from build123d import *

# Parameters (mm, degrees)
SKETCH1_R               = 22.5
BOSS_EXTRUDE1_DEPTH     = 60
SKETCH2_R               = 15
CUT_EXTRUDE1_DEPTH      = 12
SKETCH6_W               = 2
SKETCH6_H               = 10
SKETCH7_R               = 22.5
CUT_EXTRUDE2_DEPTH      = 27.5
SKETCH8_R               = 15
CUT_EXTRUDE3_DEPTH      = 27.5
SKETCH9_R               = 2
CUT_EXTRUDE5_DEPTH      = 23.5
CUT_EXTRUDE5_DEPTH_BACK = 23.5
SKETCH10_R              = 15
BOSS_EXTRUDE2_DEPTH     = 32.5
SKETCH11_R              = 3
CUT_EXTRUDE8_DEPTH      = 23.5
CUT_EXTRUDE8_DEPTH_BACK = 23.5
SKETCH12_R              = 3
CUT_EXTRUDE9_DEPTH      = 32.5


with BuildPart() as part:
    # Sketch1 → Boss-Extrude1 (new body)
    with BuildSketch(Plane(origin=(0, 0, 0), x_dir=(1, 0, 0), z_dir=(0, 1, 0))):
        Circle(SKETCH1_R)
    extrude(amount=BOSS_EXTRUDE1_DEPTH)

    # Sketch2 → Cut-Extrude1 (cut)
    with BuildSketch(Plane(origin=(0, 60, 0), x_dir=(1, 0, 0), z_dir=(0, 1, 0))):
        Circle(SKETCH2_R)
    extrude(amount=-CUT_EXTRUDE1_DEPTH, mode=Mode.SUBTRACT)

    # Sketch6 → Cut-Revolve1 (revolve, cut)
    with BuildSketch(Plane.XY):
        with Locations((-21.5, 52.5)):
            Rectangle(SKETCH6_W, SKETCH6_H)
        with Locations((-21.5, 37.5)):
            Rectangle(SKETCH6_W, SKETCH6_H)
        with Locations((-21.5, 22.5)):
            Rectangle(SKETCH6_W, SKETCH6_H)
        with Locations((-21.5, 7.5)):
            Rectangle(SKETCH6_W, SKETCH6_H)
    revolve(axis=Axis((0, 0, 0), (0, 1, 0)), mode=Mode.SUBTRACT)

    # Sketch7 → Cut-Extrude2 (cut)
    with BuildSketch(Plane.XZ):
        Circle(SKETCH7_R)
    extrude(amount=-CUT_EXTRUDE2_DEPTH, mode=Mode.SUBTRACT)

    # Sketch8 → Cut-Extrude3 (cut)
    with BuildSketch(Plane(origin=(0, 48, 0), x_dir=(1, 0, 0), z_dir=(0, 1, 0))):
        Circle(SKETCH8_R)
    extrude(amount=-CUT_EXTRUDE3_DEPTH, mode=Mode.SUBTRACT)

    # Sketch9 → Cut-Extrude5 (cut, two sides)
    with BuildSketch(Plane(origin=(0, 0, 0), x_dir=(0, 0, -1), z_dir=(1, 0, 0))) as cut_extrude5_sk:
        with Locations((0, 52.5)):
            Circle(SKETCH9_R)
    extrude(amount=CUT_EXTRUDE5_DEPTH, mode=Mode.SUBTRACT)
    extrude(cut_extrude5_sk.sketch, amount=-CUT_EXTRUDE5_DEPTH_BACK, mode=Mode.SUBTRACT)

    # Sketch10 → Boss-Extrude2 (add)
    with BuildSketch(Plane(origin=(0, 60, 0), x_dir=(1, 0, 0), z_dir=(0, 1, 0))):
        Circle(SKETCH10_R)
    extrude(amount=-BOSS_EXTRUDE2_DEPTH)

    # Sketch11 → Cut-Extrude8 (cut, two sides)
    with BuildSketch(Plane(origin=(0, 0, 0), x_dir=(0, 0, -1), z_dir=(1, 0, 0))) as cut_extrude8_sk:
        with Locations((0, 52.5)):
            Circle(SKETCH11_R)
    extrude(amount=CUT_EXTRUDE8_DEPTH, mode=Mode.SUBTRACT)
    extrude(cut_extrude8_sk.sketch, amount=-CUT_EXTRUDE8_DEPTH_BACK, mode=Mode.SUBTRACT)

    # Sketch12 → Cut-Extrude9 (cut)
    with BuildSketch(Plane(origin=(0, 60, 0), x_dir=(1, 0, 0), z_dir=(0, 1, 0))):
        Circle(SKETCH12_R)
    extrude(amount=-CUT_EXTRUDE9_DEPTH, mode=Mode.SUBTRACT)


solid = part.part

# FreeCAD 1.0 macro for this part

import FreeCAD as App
import Part
import Sketcher
Q = App.Units.Quantity


def add_polygon(sketch, points):
    """Adds a closed chain of lines whose ends are joined by coincident constraints."""
    first, n = sketch.GeometryCount, len(points)
    for a, b in zip(points, points[1:] + points[:1]):
        sketch.addGeometry(Part.LineSegment(App.Vector(*a, 0), App.Vector(*b, 0)), False)
    for i in range(n):
        sketch.addConstraint(Sketcher.Constraint("Coincident", first + i, 2, first + (i + 1) % n, 1))

doc = App.newDocument("Part")
body = doc.addObject("PartDesign::Body", "Body")

# Sketch on XZ plane
sketch1 = body.newObject("Sketcher::SketchObject", "Sketch")
sketch1.AttachmentSupport = (doc.getObject("XZ_Plane"), [""])
sketch1.MapMode = "FlatFace"
sketch1.addGeometry(Part.Circle(App.Vector(0, 0, 0), App.Vector(0, 0, 1), 22), False)
sketch1.addConstraint([
    Sketcher.Constraint("Coincident", 0, 3, -1, 1),
    Sketcher.Constraint("Diameter", 0, Q("45 mm")),
])
pad1 = body.newObject("PartDesign::Pad", "Pad")
pad1.Profile = sketch1
pad1.Length = 60
pad1.Reversed = True

# Sketch on XZ plane
sketch2 = body.newObject("Sketcher::SketchObject", "Sketch001")
sketch2.AttachmentSupport = (doc.getObject("XZ_Plane"), [""])
sketch2.MapMode = "FlatFace"
sketch2.AttachmentOffset = App.Placement(App.Vector(0, 0, -60), App.Rotation())
sketch2.addGeometry(Part.Circle(App.Vector(0, 0, 0), App.Vector(0, 0, 1), 15), False)
sketch2.addConstraint([
    Sketcher.Constraint("Coincident", 0, 3, -1, 1),
    Sketcher.Constraint("Diameter", 0, Q("30 mm")),
])
pocket1 = body.newObject("PartDesign::Pocket", "Pocket")
pocket1.Profile = sketch2
pocket1.Length = 12
pocket1.Reversed = True

# Sketch on XY plane
sketch3 = body.newObject("Sketcher::SketchObject", "Sketch002")
sketch3.AttachmentSupport = (doc.getObject("XY_Plane"), [""])
sketch3.MapMode = "FlatFace"
add_polygon(sketch3, [(-22.5, 57.5), (-22.5, 47.5), (-20.5, 47.5), (-20.5, 57.5)])  # lines 0-3
add_polygon(sketch3, [(-22.5, 42.5), (-22.5, 32.5), (-20.5, 32.5), (-20.5, 42.5)])  # lines 4-7
add_polygon(sketch3, [(-22.5, 27.5), (-22.5, 17.5), (-20.5, 17.5), (-20.5, 27.5)])  # lines 8-11
add_polygon(sketch3, [(-22.5, 12.5), (-22.5, 2.5), (-20.5, 2.5), (-20.5, 12.5)])  # lines 12-15
sketch3.addConstraint([
    Sketcher.Constraint("Vertical", 0),
    Sketcher.Constraint("Horizontal", 1),
    Sketcher.Constraint("Vertical", 2),
    Sketcher.Constraint("Horizontal", 3),
    Sketcher.Constraint("Vertical", 4),
    Sketcher.Constraint("Horizontal", 5),
    Sketcher.Constraint("Vertical", 6),
    Sketcher.Constraint("Horizontal", 7),
    Sketcher.Constraint("Vertical", 8),
    Sketcher.Constraint("Horizontal", 9),
    Sketcher.Constraint("Vertical", 10),
    Sketcher.Constraint("Horizontal", 11),
    Sketcher.Constraint("Vertical", 12),
    Sketcher.Constraint("Horizontal", 13),
    Sketcher.Constraint("Vertical", 14),
    Sketcher.Constraint("Horizontal", 15),
    Sketcher.Constraint("Vertical", 3, 2, 4, 2),
    Sketcher.Constraint("Vertical", 2, 2, 5, 2),
    Sketcher.Constraint("Vertical", 7, 2, 8, 2),
    Sketcher.Constraint("Vertical", 6, 2, 9, 2),
    Sketcher.Constraint("Vertical", 11, 2, 12, 2),
    Sketcher.Constraint("Vertical", 10, 2, 13, 2),
    Sketcher.Constraint("Equal", 2, 4),
    Sketcher.Constraint("Equal", 6, 8),
    Sketcher.Constraint("Equal", 10, 12),
    Sketcher.Constraint("DistanceX", 1, 1, 1, 2, Q("2 mm")),
    Sketcher.Constraint("DistanceY", 0, 2, 0, 1, Q("10 mm")),
    Sketcher.Constraint("DistanceY", 4, 2, 0, 2, Q("15 mm")),
    Sketcher.Constraint("DistanceY", 8, 2, 4, 2, Q("15 mm")),
    Sketcher.Constraint("DistanceY", 12, 2, 8, 2, Q("15 mm")),
    Sketcher.Constraint("DistanceX", 0, 2, -1, 1, Q("22.5 mm")),
    Sketcher.Constraint("DistanceY", -1, 1, 0, 2, Q("47.5 mm")),
])
groove = body.newObject("PartDesign::Groove", "Groove")
groove.Profile = sketch3
groove.ReferenceAxis = (sketch3, ["V_Axis"])
groove.Angle = 360

# Sketch on XZ plane
sketch4 = body.newObject("Sketcher::SketchObject", "Sketch003")
sketch4.AttachmentSupport = (doc.getObject("XZ_Plane"), [""])
sketch4.MapMode = "FlatFace"
sketch4.addGeometry(Part.Circle(App.Vector(0, 0, 0), App.Vector(0, 0, 1), 22), False)
sketch4.addConstraint([
    Sketcher.Constraint("Coincident", 0, 3, -1, 1),
    Sketcher.Constraint("Diameter", 0, Q("45 mm")),
])
pocket2 = body.newObject("PartDesign::Pocket", "Pocket001")
pocket2.Profile = sketch4
pocket2.Length = 27.5

# Sketch on XZ plane
sketch5 = body.newObject("Sketcher::SketchObject", "Sketch004")
sketch5.AttachmentSupport = (doc.getObject("XZ_Plane"), [""])
sketch5.MapMode = "FlatFace"
sketch5.AttachmentOffset = App.Placement(App.Vector(0, 0, -48), App.Rotation())
sketch5.addGeometry(Part.Circle(App.Vector(0, 0, 0), App.Vector(0, 0, 1), 15), False)
sketch5.addConstraint([
    Sketcher.Constraint("Coincident", 0, 3, -1, 1),
    Sketcher.Constraint("Diameter", 0, Q("30 mm")),
])
pocket3 = body.newObject("PartDesign::Pocket", "Pocket002")
pocket3.Profile = sketch5
pocket3.Length = 27.5
pocket3.Reversed = True

# Sketch on YZ plane
sketch6 = body.newObject("Sketcher::SketchObject", "Sketch005")
sketch6.AttachmentSupport = (doc.getObject("YZ_Plane"), [""])
sketch6.MapMode = "FlatFace"
sketch6.addGeometry(Part.Circle(App.Vector(52.5, 0, 0), App.Vector(0, 0, 1), 2), False)
sketch6.addConstraint([
    Sketcher.Constraint("PointOnObject", 0, 3, -1),
    Sketcher.Constraint("Diameter", 0, Q("4 mm")),
    Sketcher.Constraint("DistanceX", -1, 1, 0, 3, Q("52.5 mm")),
])
pocket4 = body.newObject("PartDesign::Pocket", "Pocket003")
pocket4.Profile = sketch6
pocket4.Type = "ThroughAll"
pocket4.Midplane = True

# Sketch on XZ plane
sketch7 = body.newObject("Sketcher::SketchObject", "Sketch006")
sketch7.AttachmentSupport = (doc.getObject("XZ_Plane"), [""])
sketch7.MapMode = "FlatFace"
sketch7.AttachmentOffset = App.Placement(App.Vector(0, 0, -60), App.Rotation())
sketch7.addGeometry(Part.Circle(App.Vector(0, 0, 0), App.Vector(0, 0, 1), 15), False)
sketch7.addConstraint([
    Sketcher.Constraint("Coincident", 0, 3, -1, 1),
    Sketcher.Constraint("Diameter", 0, Q("30 mm")),
])
pad2 = body.newObject("PartDesign::Pad", "Pad001")
pad2.Profile = sketch7
pad2.Length = 32.5

# Sketch on YZ plane
sketch8 = body.newObject("Sketcher::SketchObject", "Sketch007")
sketch8.AttachmentSupport = (doc.getObject("YZ_Plane"), [""])
sketch8.MapMode = "FlatFace"
sketch8.addGeometry(Part.Circle(App.Vector(52.5, 0, 0), App.Vector(0, 0, 1), 3), False)
sketch8.addConstraint([
    Sketcher.Constraint("PointOnObject", 0, 3, -1),
    Sketcher.Constraint("Diameter", 0, Q("6 mm")),
    Sketcher.Constraint("DistanceX", -1, 1, 0, 3, Q("52.5 mm")),
])
pocket5 = body.newObject("PartDesign::Pocket", "Pocket004")
pocket5.Profile = sketch8
pocket5.Type = "ThroughAll"
pocket5.Midplane = True

# Sketch on XZ plane
sketch9 = body.newObject("Sketcher::SketchObject", "Sketch008")
sketch9.AttachmentSupport = (doc.getObject("XZ_Plane"), [""])
sketch9.MapMode = "FlatFace"
sketch9.AttachmentOffset = App.Placement(App.Vector(0, 0, -60), App.Rotation())
sketch9.addGeometry(Part.Circle(App.Vector(0, 0, 0), App.Vector(0, 0, 1), 3), False)
sketch9.addConstraint([
    Sketcher.Constraint("Coincident", 0, 3, -1, 1),
    Sketcher.Constraint("Diameter", 0, Q("6 mm")),
])
pocket6 = body.newObject("PartDesign::Pocket", "Pocket005")
pocket6.Profile = sketch9
pocket6.Length = 32.5
pocket6.Reversed = True

doc.recompute()
